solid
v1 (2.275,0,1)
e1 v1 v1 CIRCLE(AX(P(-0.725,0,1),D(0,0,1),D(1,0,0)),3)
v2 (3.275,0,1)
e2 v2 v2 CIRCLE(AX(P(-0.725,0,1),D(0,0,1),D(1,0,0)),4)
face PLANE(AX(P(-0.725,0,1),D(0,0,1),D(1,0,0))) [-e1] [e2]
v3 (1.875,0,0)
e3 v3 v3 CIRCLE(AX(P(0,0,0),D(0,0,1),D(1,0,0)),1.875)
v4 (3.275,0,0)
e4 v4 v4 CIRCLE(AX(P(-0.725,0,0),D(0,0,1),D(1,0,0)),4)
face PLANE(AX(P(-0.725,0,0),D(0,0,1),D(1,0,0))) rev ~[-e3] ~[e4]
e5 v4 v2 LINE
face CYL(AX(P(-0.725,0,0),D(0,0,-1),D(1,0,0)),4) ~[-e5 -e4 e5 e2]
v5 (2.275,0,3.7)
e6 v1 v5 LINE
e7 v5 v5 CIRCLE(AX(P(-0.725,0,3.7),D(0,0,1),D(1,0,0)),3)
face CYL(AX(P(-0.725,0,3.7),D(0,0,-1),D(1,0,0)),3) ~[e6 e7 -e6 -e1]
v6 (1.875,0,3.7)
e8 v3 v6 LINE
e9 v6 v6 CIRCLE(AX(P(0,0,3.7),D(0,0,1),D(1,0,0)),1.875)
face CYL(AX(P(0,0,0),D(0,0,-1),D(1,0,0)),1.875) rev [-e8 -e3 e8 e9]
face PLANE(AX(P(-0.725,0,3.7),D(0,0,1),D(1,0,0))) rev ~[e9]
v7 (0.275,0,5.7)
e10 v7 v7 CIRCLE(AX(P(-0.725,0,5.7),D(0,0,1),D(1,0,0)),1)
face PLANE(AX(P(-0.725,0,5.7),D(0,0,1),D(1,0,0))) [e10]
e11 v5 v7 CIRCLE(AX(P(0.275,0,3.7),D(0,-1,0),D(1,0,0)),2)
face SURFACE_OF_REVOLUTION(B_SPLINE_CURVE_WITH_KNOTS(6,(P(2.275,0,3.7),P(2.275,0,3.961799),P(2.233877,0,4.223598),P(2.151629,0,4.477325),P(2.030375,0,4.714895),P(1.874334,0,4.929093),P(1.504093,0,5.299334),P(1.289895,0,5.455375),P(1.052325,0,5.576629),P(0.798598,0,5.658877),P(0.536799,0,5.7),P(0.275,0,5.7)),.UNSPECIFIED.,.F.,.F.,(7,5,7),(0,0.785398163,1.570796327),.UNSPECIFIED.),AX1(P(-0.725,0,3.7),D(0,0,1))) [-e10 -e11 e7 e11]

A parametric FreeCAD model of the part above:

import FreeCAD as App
import Part
import Sketcher


def edges_at(feature, points):
    """Names of the edges that pass closest to the given points."""
    edges = feature.Shape.Edges
    near = lambda p: min(range(len(edges)), key=lambda i: edges[i].distToShape(Part.Vertex(*p))[0])
    return sorted({f"Edge{near(p) + 1}" for p in points})

doc = App.newDocument("Part")
body = doc.addObject("PartDesign::Body", "Body")

sketch1 = doc.addObject("Sketcher::SketchObject", "Sketch")
body.addObject(sketch1)
sketch1.AttachmentSupport = (doc.XY_Plane, [""])
sketch1.MapMode = "FlatFace"
sketch1.addGeometry([
    Part.Circle(App.Vector(-0.7, 0, 0), App.Vector(0, 0, 1), 4),
    Part.Circle(App.Vector(-0.7, 0, 0), App.Vector(0, 0, 1), 3),
], False)
sketch1.addConstraint([
    Sketcher.Constraint("Coincident", 1, 3, 0, 3),
    Sketcher.Constraint("PointOnObject", 0, 3, -1),
    Sketcher.Constraint("Diameter", 0, 8.0),
    Sketcher.Constraint("Diameter", 1, 6.0),
    Sketcher.Constraint("DistanceX", 0, 3, -1, 1, 0.725),
])
pad1 = doc.addObject("PartDesign::Pad", "Pad")
body.addObject(pad1)
pad1.Profile = sketch1
pad1.Length = 1

sketch2 = doc.addObject("Sketcher::SketchObject", "Sketch001")
body.addObject(sketch2)
sketch2.AttachmentSupport = (doc.XY_Plane, [""])
sketch2.MapMode = "FlatFace"
sketch2.addGeometry([
    Part.Circle(App.Vector(-0.7, 0, 0), App.Vector(0, 0, 1), 3),
    Part.Circle(App.Vector(0, 0, 0), App.Vector(0, 0, 1), 1.9),
], False)
sketch2.addConstraint([
    Sketcher.Constraint("Coincident", 1, 3, -1, 1),
    Sketcher.Constraint("PointOnObject", 0, 3, -1),
    Sketcher.Constraint("Diameter", 0, 6.0),
    Sketcher.Constraint("Diameter", 1, 3.75),
    Sketcher.Constraint("DistanceX", 0, 3, -1, 1, 0.725),
])
pad2 = doc.addObject("PartDesign::Pad", "Pad001")
body.addObject(pad2)
pad2.Profile = sketch2
pad2.Length = 3.7

sketch3 = doc.addObject("Sketcher::SketchObject", "Sketch002")
body.addObject(sketch3)
sketch3.AttachmentSupport = (doc.XY_Plane, [""])
sketch3.MapMode = "FlatFace"
sketch3.AttachmentOffset = App.Placement(App.Vector(0, 0, 3.7), App.Rotation())
sketch3.addGeometry(Part.Circle(App.Vector(-0.7, 0, 0), App.Vector(0, 0, 1), 3), False)
sketch3.addConstraint([
    Sketcher.Constraint("PointOnObject", 0, 3, -1),
    Sketcher.Constraint("Diameter", 0, 6.0),
    Sketcher.Constraint("DistanceX", 0, 3, -1, 1, 0.725),
])
pad3 = doc.addObject("PartDesign::Pad", "Pad002")
body.addObject(pad3)
pad3.Profile = sketch3
pad3.Length = 2
doc.recompute()

fillet = doc.addObject("PartDesign::Fillet", "Fillet")
body.addObject(fillet)
fillet.Base = (pad3, edges_at(pad3, [(-3.725, 0, 5.7)]))
fillet.Radius = 2

doc.recompute()
